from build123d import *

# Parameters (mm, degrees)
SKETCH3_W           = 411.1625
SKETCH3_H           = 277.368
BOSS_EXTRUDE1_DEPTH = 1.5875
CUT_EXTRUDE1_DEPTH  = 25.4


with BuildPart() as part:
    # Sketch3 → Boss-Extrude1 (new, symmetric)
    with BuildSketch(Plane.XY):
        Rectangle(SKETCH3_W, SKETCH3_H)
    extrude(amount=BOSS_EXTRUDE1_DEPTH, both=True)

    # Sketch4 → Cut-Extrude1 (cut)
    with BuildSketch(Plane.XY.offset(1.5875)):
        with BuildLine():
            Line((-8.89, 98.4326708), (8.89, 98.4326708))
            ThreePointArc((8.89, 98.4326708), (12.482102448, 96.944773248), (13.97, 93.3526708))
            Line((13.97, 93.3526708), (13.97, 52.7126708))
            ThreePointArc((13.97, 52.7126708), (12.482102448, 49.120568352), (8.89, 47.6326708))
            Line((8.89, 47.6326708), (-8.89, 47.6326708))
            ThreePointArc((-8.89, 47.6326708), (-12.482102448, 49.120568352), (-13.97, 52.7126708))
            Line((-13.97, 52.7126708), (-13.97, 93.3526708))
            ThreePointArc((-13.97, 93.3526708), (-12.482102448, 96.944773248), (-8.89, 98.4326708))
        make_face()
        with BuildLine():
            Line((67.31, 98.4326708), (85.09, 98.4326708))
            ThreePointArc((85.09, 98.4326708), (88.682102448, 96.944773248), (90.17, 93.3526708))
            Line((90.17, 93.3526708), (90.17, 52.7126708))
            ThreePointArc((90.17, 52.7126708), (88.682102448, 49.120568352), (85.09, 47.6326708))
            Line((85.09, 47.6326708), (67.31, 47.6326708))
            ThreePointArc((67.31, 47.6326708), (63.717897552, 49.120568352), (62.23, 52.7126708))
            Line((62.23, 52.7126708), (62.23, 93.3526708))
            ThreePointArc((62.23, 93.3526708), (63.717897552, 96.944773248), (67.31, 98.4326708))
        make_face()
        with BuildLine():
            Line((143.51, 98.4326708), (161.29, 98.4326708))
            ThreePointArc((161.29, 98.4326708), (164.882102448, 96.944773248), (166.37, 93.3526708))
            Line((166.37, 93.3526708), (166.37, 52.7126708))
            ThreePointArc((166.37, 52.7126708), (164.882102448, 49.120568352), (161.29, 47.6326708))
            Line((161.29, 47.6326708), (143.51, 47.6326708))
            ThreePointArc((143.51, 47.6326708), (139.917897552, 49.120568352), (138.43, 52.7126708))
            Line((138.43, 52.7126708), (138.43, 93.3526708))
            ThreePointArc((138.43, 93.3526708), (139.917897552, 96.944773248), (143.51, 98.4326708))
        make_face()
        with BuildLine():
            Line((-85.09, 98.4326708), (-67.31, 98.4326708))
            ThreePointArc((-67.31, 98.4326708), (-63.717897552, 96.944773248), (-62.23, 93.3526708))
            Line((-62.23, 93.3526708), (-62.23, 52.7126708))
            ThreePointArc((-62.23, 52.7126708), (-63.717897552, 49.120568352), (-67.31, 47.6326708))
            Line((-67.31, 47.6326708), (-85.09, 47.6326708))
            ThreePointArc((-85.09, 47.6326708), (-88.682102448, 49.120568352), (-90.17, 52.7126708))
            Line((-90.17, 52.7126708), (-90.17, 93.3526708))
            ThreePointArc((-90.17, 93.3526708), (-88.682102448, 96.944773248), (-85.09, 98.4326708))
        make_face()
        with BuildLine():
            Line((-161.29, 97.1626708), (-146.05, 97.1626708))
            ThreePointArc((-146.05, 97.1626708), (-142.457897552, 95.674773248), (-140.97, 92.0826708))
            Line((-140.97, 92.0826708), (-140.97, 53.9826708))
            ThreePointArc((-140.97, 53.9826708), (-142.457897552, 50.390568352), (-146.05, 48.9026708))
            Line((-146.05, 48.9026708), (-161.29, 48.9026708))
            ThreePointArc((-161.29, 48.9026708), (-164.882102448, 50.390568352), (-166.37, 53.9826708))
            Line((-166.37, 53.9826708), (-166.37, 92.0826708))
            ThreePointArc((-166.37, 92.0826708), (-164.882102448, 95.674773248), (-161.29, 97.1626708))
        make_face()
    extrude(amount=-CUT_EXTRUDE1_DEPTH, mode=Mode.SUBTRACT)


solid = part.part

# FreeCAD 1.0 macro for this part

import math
import FreeCAD as App
import Part
import Sketcher

V = App.Vector
Q = App.Units.Quantity

doc = App.newDocument("Part")
params = doc.addObject("Spreadsheet::Sheet", "Params")
for row, (alias, value) in enumerate([
    ("sketch1_height", "10.92 in"),
    ("sketch1_width", "16.1875 in"),
    ("pad1_length", "0.125 in"),
    ("sketch2_radius", "0.2 in"),
    ("sketch2_width", "0.7 in"),
    ("sketch2_width2", "0.6 in"),
    ("sketch2_height", "1.6 in"),
    ("sketch2_height2", "1.5 in"),
    ("pocket1_length", "1 in"),
], start=1):
    params.set(f"A{row}", alias)
    params.set(f"B{row}", "=" + value)
    params.setAlias(f"B{row}", alias)

body = doc.addObject("PartDesign::Body", "Body")

# Sketch on XY plane
sketch1 = body.newObject("Sketcher::SketchObject", "Sketch")
sketch1.AttachmentSupport = (doc.getObject("XY_Plane"), [""])
sketch1.MapMode = "FlatFace"
sketch1.addGeometry([
    Part.LineSegment(V(-205.58125, 138.684, 0), V(-205.58125, -138.684, 0)),
    Part.LineSegment(V(-205.58125, -138.684, 0), V(205.58125, -138.684, 0)),
    Part.LineSegment(V(205.58125, -138.684, 0), V(205.58125, 138.684, 0)),
    Part.LineSegment(V(205.58125, 138.684, 0), V(-205.58125, 138.684, 0)),
], False)
sketch1.addConstraint([
    Sketcher.Constraint("Coincident", 0, 2, 1, 1),
    Sketcher.Constraint("Coincident", 1, 2, 2, 1),
    Sketcher.Constraint("Coincident", 2, 2, 3, 1),
    Sketcher.Constraint("Coincident", 3, 2, 0, 1),
    Sketcher.Constraint("Vertical", 0),
    Sketcher.Constraint("Horizontal", 1),
    Sketcher.Constraint("Vertical", 2),
    Sketcher.Constraint("Horizontal", 3),
    Sketcher.Constraint("Symmetric", 0, 2, 2, 2, -1, 1),
    Sketcher.Constraint("DistanceY", 0, 2, 0, 1, Q("10.92 in")),
    Sketcher.Constraint("DistanceX", 1, 1, 1, 2, Q("16.1875 in")),
])
sketch1.setExpression("Constraints[9]", "Params.sketch1_height")
sketch1.setExpression("Constraints[10]", "Params.sketch1_width")
pad1 = body.newObject("PartDesign::Pad", "Pad")
pad1.Profile = sketch1
pad1.setExpression("Length", "Params.pad1_length")
pad1.Midplane = True

# Sketch on XY plane
sketch2 = body.newObject("Sketcher::SketchObject", "Sketch001")
sketch2.AttachmentSupport = (doc.getObject("XY_Plane"), [""])
sketch2.MapMode = "FlatFace"
sketch2.AttachmentOffset = App.Placement(V(0, 0, 0.0625 * 25.4), App.Rotation())
sketch2.addGeometry([
    Part.LineSegment(V(8.89, 98.432671, 0), V(-8.89, 98.432671, 0)),  # 0
    Part.ArcOfCircle(Part.Circle(V(-8.89, 93.352671, 0), V(0, 0, 1), 5.08), math.radians(90), math.radians(180)),  # 1
    Part.LineSegment(V(-13.97, 93.352671, 0), V(-13.97, 52.712671, 0)),  # 2
    Part.ArcOfCircle(Part.Circle(V(-8.89, 52.712671, 0), V(0, 0, 1), 5.08), math.radians(-180), math.radians(-90)),  # 3
    Part.LineSegment(V(-8.89, 47.632671, 0), V(8.89, 47.632671, 0)),  # 4
    Part.ArcOfCircle(Part.Circle(V(8.89, 52.712671, 0), V(0, 0, 1), 5.08), math.radians(-90), math.radians(0)),  # 5
    Part.LineSegment(V(13.97, 52.712671, 0), V(13.97, 93.352671, 0)),  # 6
    Part.ArcOfCircle(Part.Circle(V(8.89, 93.352671, 0), V(0, 0, 1), 5.08), math.radians(0), math.radians(90)),  # 7
    Part.LineSegment(V(85.09, 98.432671, 0), V(67.31, 98.432671, 0)),  # 8
    Part.ArcOfCircle(Part.Circle(V(67.31, 93.352671, 0), V(0, 0, 1), 5.08), math.radians(90), math.radians(180)),  # 9
    Part.LineSegment(V(62.23, 93.352671, 0), V(62.23, 52.712671, 0)),  # 10
    Part.ArcOfCircle(Part.Circle(V(67.31, 52.712671, 0), V(0, 0, 1), 5.08), math.radians(-180), math.radians(-90)),  # 11
    Part.LineSegment(V(67.31, 47.632671, 0), V(85.09, 47.632671, 0)),  # 12
    Part.ArcOfCircle(Part.Circle(V(85.09, 52.712671, 0), V(0, 0, 1), 5.08), math.radians(-90), math.radians(0)),  # 13
    Part.LineSegment(V(90.17, 52.712671, 0), V(90.17, 93.352671, 0)),  # 14
    Part.ArcOfCircle(Part.Circle(V(85.09, 93.352671, 0), V(0, 0, 1), 5.08), math.radians(0), math.radians(90)),  # 15
    Part.LineSegment(V(161.29, 98.432671, 0), V(143.51, 98.432671, 0)),  # 16
    Part.ArcOfCircle(Part.Circle(V(143.51, 93.352671, 0), V(0, 0, 1), 5.08), math.radians(90), math.radians(180)),  # 17
    Part.LineSegment(V(138.43, 93.352671, 0), V(138.43, 52.712671, 0)),  # 18
    Part.ArcOfCircle(Part.Circle(V(143.51, 52.712671, 0), V(0, 0, 1), 5.08), math.radians(-180), math.radians(-90)),  # 19
    Part.LineSegment(V(143.51, 47.632671, 0), V(161.29, 47.632671, 0)),  # 20
    Part.ArcOfCircle(Part.Circle(V(161.29, 52.712671, 0), V(0, 0, 1), 5.08), math.radians(-90), math.radians(0)),  # 21
    Part.LineSegment(V(166.37, 52.712671, 0), V(166.37, 93.352671, 0)),  # 22
    Part.ArcOfCircle(Part.Circle(V(161.29, 93.352671, 0), V(0, 0, 1), 5.08), math.radians(0), math.radians(90)),  # 23
    Part.LineSegment(V(-67.31, 98.432671, 0), V(-85.09, 98.432671, 0)),  # 24
    Part.ArcOfCircle(Part.Circle(V(-85.09, 93.352671, 0), V(0, 0, 1), 5.08), math.radians(90), math.radians(180)),  # 25
    Part.LineSegment(V(-90.17, 93.352671, 0), V(-90.17, 52.712671, 0)),  # 26
    Part.ArcOfCircle(Part.Circle(V(-85.09, 52.712671, 0), V(0, 0, 1), 5.08), math.radians(-180), math.radians(-90)),  # 27
    Part.LineSegment(V(-85.09, 47.632671, 0), V(-67.31, 47.632671, 0)),  # 28
    Part.ArcOfCircle(Part.Circle(V(-67.31, 52.712671, 0), V(0, 0, 1), 5.08), math.radians(-90), math.radians(0)),  # 29
    Part.LineSegment(V(-62.23, 52.712671, 0), V(-62.23, 93.352671, 0)),  # 30
    Part.ArcOfCircle(Part.Circle(V(-67.31, 93.352671, 0), V(0, 0, 1), 5.08), math.radians(0), math.radians(90)),  # 31
    Part.LineSegment(V(-146.05, 97.162671, 0), V(-161.29, 97.162671, 0)),  # 32
    Part.ArcOfCircle(Part.Circle(V(-161.29, 92.082671, 0), V(0, 0, 1), 5.08), math.radians(90), math.radians(180)),  # 33
    Part.LineSegment(V(-166.37, 92.082671, 0), V(-166.37, 53.982671, 0)),  # 34
    Part.ArcOfCircle(Part.Circle(V(-161.29, 53.982671, 0), V(0, 0, 1), 5.08), math.radians(-180), math.radians(-90)),  # 35
    Part.LineSegment(V(-161.29, 48.902671, 0), V(-146.05, 48.902671, 0)),  # 36
    Part.ArcOfCircle(Part.Circle(V(-146.05, 53.982671, 0), V(0, 0, 1), 5.08), math.radians(-90), math.radians(0)),  # 37
    Part.LineSegment(V(-140.97, 53.982671, 0), V(-140.97, 92.082671, 0)),  # 38
    Part.ArcOfCircle(Part.Circle(V(-146.05, 92.082671, 0), V(0, 0, 1), 5.08), math.radians(0), math.radians(90)),  # 39
], False)
sketch2.addConstraint([
    Sketcher.Constraint("Tangent", 0, 2, 1, 1),
    Sketcher.Constraint("Tangent", 1, 2, 2, 1),
    Sketcher.Constraint("Tangent", 2, 2, 3, 1),
    Sketcher.Constraint("Tangent", 3, 2, 4, 1),
    Sketcher.Constraint("Tangent", 4, 2, 5, 1),
    Sketcher.Constraint("Tangent", 5, 2, 6, 1),
    Sketcher.Constraint("Tangent", 6, 2, 7, 1),
    Sketcher.Constraint("Tangent", 7, 2, 0, 1),
    Sketcher.Constraint("Tangent", 8, 2, 9, 1),
    Sketcher.Constraint("Tangent", 9, 2, 10, 1),
    Sketcher.Constraint("Tangent", 10, 2, 11, 1),
    Sketcher.Constraint("Tangent", 11, 2, 12, 1),
    Sketcher.Constraint("Tangent", 12, 2, 13, 1),
    Sketcher.Constraint("Tangent", 13, 2, 14, 1),
    Sketcher.Constraint("Tangent", 14, 2, 15, 1),
    Sketcher.Constraint("Tangent", 15, 2, 8, 1),
    Sketcher.Constraint("Tangent", 16, 2, 17, 1),
    Sketcher.Constraint("Tangent", 17, 2, 18, 1),
    Sketcher.Constraint("Tangent", 18, 2, 19, 1),
    Sketcher.Constraint("Tangent", 19, 2, 20, 1),
    Sketcher.Constraint("Tangent", 20, 2, 21, 1),
    Sketcher.Constraint("Tangent", 21, 2, 22, 1),
    Sketcher.Constraint("Tangent", 22, 2, 23, 1),
    Sketcher.Constraint("Tangent", 23, 2, 16, 1),
    Sketcher.Constraint("Tangent", 24, 2, 25, 1),
    Sketcher.Constraint("Tangent", 25, 2, 26, 1),
    Sketcher.Constraint("Tangent", 26, 2, 27, 1),
    Sketcher.Constraint("Tangent", 27, 2, 28, 1),
    Sketcher.Constraint("Tangent", 28, 2, 29, 1),
    Sketcher.Constraint("Tangent", 29, 2, 30, 1),
    Sketcher.Constraint("Tangent", 30, 2, 31, 1),
    Sketcher.Constraint("Tangent", 31, 2, 24, 1),
    Sketcher.Constraint("Tangent", 32, 2, 33, 1),
    Sketcher.Constraint("Tangent", 33, 2, 34, 1),
    Sketcher.Constraint("Tangent", 34, 2, 35, 1),
    Sketcher.Constraint("Tangent", 35, 2, 36, 1),
    Sketcher.Constraint("Tangent", 36, 2, 37, 1),
    Sketcher.Constraint("Tangent", 37, 2, 38, 1),
    Sketcher.Constraint("Tangent", 38, 2, 39, 1),
    Sketcher.Constraint("Tangent", 39, 2, 32, 1),
    Sketcher.Constraint("Horizontal", 0),
    Sketcher.Constraint("Vertical", 2),
    Sketcher.Constraint("Horizontal", 4),
    Sketcher.Constraint("Vertical", 6),
    Sketcher.Constraint("Horizontal", 8),
    Sketcher.Constraint("Vertical", 10),
    Sketcher.Constraint("Horizontal", 12),
    Sketcher.Constraint("Vertical", 14),
    Sketcher.Constraint("Horizontal", 16),
    Sketcher.Constraint("Vertical", 18),
    Sketcher.Constraint("Horizontal", 20),
    Sketcher.Constraint("Vertical", 22),
    Sketcher.Constraint("Horizontal", 24),
    Sketcher.Constraint("Vertical", 26),
    Sketcher.Constraint("Horizontal", 28),
    Sketcher.Constraint("Vertical", 30),
    Sketcher.Constraint("Horizontal", 32),
    Sketcher.Constraint("Vertical", 34),
    Sketcher.Constraint("Horizontal", 36),
    Sketcher.Constraint("Vertical", 38),
    Sketcher.Constraint("Equal", 1, 3),
    Sketcher.Constraint("Equal", 3, 5),
    Sketcher.Constraint("Equal", 5, 7),
    Sketcher.Constraint("Equal", 7, 9),
    Sketcher.Constraint("Equal", 9, 11),
    Sketcher.Constraint("Equal", 11, 13),
    Sketcher.Constraint("Equal", 13, 15),
    Sketcher.Constraint("Equal", 15, 17),
    Sketcher.Constraint("Equal", 17, 19),
    Sketcher.Constraint("Equal", 19, 21),
    Sketcher.Constraint("Equal", 21, 23),
    Sketcher.Constraint("Equal", 23, 25),
    Sketcher.Constraint("Equal", 25, 27),
    Sketcher.Constraint("Equal", 27, 29),
    Sketcher.Constraint("Equal", 29, 31),
    Sketcher.Constraint("Equal", 31, 33),
    Sketcher.Constraint("Equal", 33, 35),
    Sketcher.Constraint("Equal", 35, 37),
    Sketcher.Constraint("Equal", 37, 39),
    Sketcher.Constraint("Symmetric", 15, 3, 25, 3, -2),
    Sketcher.Constraint("Symmetric", 11, 3, 29, 3, -2),
    Sketcher.Constraint("Horizontal", 7, 3, 9, 3),
    Sketcher.Constraint("Horizontal", 5, 3, 11, 3),
    Sketcher.Constraint("Horizontal", 15, 3, 17, 3),
    Sketcher.Constraint("Horizontal", 13, 3, 19, 3),
    Sketcher.Constraint("Equal", 4, 8),
    Sketcher.Constraint("Equal", 12, 16),
    Sketcher.Constraint("Radius", 1, Q("0.2 in")),
    Sketcher.Constraint("DistanceX", 0, 2, 0, 1, Q("0.7 in")),
    Sketcher.Constraint("DistanceX", 32, 2, 32, 1, Q("0.6 in")),
    Sketcher.Constraint("DistanceY", 2, 2, 2, 1, Q("1.6 in")),
    Sketcher.Constraint("DistanceY", 34, 2, 34, 1, Q("1.5 in")),
    Sketcher.Constraint("DistanceX", 1, 3, 9, 3, Q("3 in")),
    Sketcher.Constraint("DistanceX", 9, 3, 17, 3, Q("3 in")),
    Sketcher.Constraint("DistanceX", 25, 3, 1, 3, Q("3 in")),
    Sketcher.Constraint("DistanceX", 33, 3, 25, 3, Q("3 in")),
    Sketcher.Constraint("DistanceY", 33, 3, 25, 3, Q("0.05 in")),
    Sketcher.Constraint("DistanceY", -1, 1, 1, 3, Q("93.352671 mm")),
])
sketch2.setExpression("Constraints[87]", "Params.sketch2_radius")
sketch2.setExpression("Constraints[88]", "Params.sketch2_width")
sketch2.setExpression("Constraints[89]", "Params.sketch2_width2")
sketch2.setExpression("Constraints[90]", "Params.sketch2_height")
sketch2.setExpression("Constraints[91]", "Params.sketch2_height2")
pocket1 = body.newObject("PartDesign::Pocket", "Pocket")
pocket1.Profile = sketch2
pocket1.setExpression("Length", "Params.pocket1_length")

doc.recompute()
